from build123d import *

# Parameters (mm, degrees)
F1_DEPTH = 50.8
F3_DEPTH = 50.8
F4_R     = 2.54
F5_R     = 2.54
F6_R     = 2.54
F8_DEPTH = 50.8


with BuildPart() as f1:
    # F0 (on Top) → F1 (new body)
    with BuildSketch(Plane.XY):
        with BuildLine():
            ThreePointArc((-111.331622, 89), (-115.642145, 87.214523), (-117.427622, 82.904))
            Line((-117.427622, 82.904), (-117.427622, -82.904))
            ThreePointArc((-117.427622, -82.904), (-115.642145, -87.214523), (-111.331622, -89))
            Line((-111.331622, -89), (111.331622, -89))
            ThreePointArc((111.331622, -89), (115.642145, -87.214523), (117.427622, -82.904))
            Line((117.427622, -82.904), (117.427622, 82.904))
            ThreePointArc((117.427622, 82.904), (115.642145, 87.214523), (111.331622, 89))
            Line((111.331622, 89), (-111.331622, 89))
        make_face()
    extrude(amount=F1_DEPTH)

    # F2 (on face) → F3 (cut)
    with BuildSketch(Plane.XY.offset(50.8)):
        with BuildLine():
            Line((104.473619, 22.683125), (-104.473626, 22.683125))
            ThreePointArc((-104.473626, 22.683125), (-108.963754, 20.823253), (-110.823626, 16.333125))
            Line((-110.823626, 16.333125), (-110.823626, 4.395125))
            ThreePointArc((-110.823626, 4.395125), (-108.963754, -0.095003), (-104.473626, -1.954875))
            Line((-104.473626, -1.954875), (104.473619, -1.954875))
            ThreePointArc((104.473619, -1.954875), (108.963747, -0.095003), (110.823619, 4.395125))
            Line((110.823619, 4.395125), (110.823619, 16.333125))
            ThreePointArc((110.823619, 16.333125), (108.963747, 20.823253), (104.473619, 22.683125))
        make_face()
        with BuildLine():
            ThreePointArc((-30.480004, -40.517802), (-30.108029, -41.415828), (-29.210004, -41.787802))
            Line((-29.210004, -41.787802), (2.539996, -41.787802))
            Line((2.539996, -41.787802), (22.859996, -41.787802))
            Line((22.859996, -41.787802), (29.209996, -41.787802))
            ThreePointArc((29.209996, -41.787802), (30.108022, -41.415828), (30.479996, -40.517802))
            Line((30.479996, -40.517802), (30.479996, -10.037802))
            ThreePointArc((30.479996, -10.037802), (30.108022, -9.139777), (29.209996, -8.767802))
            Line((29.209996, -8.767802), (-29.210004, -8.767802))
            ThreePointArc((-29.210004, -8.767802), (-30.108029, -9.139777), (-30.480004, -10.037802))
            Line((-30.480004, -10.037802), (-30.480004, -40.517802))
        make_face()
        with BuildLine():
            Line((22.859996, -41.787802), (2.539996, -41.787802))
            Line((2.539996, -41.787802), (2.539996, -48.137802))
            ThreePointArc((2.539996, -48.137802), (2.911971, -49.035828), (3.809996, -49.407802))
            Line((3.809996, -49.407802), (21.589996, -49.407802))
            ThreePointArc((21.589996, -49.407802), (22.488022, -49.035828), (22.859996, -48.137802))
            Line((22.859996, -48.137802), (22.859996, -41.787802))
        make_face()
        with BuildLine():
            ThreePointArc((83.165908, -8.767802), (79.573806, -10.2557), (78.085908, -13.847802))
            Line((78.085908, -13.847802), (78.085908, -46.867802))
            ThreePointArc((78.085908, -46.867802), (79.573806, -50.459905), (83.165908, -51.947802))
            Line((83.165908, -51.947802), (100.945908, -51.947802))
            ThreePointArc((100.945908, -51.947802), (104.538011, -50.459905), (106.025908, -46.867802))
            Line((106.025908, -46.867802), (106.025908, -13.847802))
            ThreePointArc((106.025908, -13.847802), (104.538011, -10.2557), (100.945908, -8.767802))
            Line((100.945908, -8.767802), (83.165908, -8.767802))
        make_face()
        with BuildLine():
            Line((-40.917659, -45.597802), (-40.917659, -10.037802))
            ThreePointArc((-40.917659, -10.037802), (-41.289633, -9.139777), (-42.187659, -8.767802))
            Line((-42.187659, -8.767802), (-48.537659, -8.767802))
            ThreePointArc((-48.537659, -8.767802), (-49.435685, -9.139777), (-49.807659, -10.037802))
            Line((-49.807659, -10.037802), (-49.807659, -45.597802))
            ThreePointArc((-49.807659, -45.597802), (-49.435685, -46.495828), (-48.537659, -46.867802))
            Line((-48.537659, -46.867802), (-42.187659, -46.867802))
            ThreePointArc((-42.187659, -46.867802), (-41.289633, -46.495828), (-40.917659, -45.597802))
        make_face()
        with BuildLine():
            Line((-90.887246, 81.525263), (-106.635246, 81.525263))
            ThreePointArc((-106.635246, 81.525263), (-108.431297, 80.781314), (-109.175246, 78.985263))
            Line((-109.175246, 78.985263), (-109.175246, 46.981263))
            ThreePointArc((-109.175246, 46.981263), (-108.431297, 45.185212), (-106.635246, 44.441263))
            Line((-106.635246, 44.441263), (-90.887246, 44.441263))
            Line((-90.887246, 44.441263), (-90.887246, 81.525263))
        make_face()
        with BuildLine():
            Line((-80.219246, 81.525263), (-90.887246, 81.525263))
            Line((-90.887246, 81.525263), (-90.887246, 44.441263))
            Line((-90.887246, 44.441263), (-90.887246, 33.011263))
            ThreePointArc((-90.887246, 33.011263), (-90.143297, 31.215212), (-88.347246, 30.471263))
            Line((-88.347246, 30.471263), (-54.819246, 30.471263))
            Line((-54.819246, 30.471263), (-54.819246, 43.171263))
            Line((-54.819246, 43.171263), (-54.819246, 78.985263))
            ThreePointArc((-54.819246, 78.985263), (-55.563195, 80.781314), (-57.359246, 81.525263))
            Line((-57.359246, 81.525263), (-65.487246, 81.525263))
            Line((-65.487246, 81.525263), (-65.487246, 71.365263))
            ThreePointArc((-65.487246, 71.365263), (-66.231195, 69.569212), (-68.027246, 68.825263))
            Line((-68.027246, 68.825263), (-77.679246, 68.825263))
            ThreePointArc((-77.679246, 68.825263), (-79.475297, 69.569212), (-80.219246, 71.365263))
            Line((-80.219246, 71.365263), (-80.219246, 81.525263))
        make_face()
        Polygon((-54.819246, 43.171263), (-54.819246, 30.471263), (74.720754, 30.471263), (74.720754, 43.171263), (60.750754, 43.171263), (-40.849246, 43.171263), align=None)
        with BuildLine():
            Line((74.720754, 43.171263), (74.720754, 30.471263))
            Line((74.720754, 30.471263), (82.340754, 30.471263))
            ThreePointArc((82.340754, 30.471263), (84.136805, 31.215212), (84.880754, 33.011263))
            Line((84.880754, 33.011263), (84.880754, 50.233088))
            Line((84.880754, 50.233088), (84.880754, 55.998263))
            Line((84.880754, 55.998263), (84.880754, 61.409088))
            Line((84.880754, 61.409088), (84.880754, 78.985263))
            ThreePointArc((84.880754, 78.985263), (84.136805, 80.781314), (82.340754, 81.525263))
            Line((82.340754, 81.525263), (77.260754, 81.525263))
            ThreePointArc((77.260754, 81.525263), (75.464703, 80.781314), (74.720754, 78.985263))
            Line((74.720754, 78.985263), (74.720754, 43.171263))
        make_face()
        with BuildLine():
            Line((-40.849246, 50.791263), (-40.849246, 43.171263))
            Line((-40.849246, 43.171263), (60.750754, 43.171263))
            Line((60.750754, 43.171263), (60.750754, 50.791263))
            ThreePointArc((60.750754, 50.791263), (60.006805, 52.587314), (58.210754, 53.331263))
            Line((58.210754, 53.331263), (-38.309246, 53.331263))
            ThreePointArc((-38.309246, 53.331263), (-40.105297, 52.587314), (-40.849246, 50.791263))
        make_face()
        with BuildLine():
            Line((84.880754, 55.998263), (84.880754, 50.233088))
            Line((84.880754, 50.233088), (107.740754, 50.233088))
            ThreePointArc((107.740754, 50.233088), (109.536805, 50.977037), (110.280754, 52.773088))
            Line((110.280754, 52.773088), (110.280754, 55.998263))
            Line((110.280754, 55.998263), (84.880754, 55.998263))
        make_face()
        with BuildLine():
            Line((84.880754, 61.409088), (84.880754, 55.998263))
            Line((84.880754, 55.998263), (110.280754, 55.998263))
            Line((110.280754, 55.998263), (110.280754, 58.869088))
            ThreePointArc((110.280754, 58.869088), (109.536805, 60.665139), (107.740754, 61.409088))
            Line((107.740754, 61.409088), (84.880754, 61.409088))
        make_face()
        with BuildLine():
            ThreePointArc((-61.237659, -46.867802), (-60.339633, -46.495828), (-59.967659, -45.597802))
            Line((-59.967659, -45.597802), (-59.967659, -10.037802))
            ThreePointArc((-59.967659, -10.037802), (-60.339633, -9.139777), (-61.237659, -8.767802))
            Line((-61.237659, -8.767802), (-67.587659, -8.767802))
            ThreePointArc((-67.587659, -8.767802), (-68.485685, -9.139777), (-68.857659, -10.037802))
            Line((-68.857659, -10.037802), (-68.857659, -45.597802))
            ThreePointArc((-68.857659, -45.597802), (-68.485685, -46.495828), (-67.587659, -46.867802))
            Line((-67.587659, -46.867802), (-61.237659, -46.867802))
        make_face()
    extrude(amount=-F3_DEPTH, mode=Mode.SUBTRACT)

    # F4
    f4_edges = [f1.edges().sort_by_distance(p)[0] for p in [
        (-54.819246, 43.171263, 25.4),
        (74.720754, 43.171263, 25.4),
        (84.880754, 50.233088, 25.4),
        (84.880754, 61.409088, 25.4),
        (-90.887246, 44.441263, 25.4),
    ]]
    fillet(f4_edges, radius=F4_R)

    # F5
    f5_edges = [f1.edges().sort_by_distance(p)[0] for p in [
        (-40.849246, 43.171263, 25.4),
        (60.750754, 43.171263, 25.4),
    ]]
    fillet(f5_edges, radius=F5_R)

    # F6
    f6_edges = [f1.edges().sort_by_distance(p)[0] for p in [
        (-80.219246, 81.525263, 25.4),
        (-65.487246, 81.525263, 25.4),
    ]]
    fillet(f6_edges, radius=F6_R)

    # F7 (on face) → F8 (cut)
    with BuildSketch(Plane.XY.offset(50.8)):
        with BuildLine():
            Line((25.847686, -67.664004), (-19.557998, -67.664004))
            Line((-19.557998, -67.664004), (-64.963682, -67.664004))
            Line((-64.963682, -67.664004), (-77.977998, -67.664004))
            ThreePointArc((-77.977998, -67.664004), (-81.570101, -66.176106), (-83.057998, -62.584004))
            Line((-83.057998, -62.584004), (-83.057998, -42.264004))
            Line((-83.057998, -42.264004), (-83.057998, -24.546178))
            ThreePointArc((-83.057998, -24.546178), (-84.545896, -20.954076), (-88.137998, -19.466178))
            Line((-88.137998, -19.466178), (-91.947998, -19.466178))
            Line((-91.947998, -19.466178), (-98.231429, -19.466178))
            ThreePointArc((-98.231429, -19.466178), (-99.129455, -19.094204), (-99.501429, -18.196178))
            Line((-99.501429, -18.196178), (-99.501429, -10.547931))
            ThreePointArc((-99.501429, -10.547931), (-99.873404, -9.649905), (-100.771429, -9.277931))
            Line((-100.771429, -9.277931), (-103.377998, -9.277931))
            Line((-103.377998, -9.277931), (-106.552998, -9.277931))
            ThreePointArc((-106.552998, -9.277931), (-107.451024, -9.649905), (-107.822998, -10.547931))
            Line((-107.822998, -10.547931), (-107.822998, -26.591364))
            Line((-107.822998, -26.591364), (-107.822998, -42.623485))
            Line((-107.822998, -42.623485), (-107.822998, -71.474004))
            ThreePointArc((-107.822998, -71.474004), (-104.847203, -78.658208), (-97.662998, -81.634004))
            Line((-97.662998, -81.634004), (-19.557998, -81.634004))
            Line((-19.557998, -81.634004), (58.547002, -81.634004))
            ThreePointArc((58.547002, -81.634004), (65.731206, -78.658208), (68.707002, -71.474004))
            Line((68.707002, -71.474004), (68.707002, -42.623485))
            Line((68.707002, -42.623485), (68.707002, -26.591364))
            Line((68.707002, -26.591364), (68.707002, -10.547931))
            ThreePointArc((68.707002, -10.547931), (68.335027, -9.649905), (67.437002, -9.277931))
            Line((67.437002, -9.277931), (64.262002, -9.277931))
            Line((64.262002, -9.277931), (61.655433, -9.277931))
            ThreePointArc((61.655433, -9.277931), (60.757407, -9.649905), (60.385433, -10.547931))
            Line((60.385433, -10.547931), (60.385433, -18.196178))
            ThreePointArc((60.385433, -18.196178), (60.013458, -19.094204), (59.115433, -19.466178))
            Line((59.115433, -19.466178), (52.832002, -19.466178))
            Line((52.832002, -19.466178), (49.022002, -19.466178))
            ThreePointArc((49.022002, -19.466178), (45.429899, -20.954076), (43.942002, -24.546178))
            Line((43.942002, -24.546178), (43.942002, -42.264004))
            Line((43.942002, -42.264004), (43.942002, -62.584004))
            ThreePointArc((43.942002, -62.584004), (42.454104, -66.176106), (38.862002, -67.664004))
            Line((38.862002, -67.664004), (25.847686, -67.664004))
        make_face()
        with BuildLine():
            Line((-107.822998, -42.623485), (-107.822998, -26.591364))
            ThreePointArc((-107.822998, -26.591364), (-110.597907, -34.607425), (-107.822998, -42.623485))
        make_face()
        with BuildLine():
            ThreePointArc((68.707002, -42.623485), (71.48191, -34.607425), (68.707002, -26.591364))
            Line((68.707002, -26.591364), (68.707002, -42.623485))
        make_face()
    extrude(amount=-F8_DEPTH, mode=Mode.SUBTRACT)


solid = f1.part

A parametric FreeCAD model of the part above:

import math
import FreeCAD as App
import Part
import Sketcher
Q = App.Units.Quantity


def edges_at(feature, points):
    """Names of the edges that pass closest to the given points."""
    edges = feature.Shape.Edges
    near = lambda p: min(range(len(edges)), key=lambda i: edges[i].distToShape(Part.Vertex(*p))[0])
    return sorted({f"Edge{near(p) + 1}" for p in points})

doc = App.newDocument("Part")
params = doc.addObject("Spreadsheet::Sheet", "Params")
for row, (alias, value) in enumerate([
    ("sketch1_radius", "0.24 in"),
    ("pad1_length", "2 in"),
    ("sketch2_radius", "0.2000001 in"),
    ("sketch2_radius2", "0.1 in"),
    ("sketch2_radius3", "0.25 in"),
    ("sketch2_radius4", "0.05 in"),
    ("sketch2_width", "0.7 in"),
    ("pocket1_length", "2 in"),
    ("fillet_radius", "0.1 in"),
    ("fillet2_radius", "0.1 in"),
    ("fillet3_radius", "0.1 in"),
    ("sketch3_radius", "0.2 in"),
    ("sketch3_radius2", "0.4000001 in"),
    ("sketch3_radius3", "0.0499999 in"),
    ("sketch3_width", "4.6 in"),
    ("sketch3_width2", "6.15 in"),
    ("pocket2_length", "2 in"),
], start=1):
    params.set(f"A{row}", alias)
    params.set(f"B{row}", "=" + value)
    params.setAlias(f"B{row}", alias)

body = doc.addObject("PartDesign::Body", "Body")

# Sketch on XY plane
sketch1 = body.newObject("Sketcher::SketchObject", "Sketch")
sketch1.AttachmentSupport = (doc.getObject("XY_Plane"), [""])
sketch1.MapMode = "FlatFace"
sketch1.addGeometry(Part.ArcOfCircle(Part.Circle(App.Vector(-111, 83, 0), App.Vector(0, 0, 1), 6), math.radians(90), math.radians(180)), False)
sketch1.addGeometry(Part.LineSegment(App.Vector(-117, 83, 0), App.Vector(-117, -83, 0)), False)
sketch1.addGeometry(Part.ArcOfCircle(Part.Circle(App.Vector(-111, -83, 0), App.Vector(0, 0, 1), 6), math.radians(180), math.radians(270)), False)
sketch1.addGeometry(Part.LineSegment(App.Vector(-111, -89, 0), App.Vector(111, -89, 0)), False)
sketch1.addGeometry(Part.ArcOfCircle(Part.Circle(App.Vector(111, -83, 0), App.Vector(0, 0, 1), 6), math.radians(-90), math.radians(0)), False)
sketch1.addGeometry(Part.LineSegment(App.Vector(117, -83, 0), App.Vector(117, 83, 0)), False)
sketch1.addGeometry(Part.ArcOfCircle(Part.Circle(App.Vector(111, 83, 0), App.Vector(0, 0, 1), 6), math.radians(0), math.radians(90)), False)
sketch1.addGeometry(Part.LineSegment(App.Vector(111, 89, 0), App.Vector(-111, 89, 0)), False)
sketch1.addConstraint(Sketcher.Constraint("Tangent", 0, 2, 1, 1))
sketch1.addConstraint(Sketcher.Constraint("Tangent", 1, 2, 2, 1))
sketch1.addConstraint(Sketcher.Constraint("Tangent", 2, 2, 3, 1))
sketch1.addConstraint(Sketcher.Constraint("Tangent", 3, 2, 4, 1))
sketch1.addConstraint(Sketcher.Constraint("Tangent", 4, 2, 5, 1))
sketch1.addConstraint(Sketcher.Constraint("Tangent", 5, 2, 6, 1))
sketch1.addConstraint(Sketcher.Constraint("Tangent", 6, 2, 7, 1))
sketch1.addConstraint(Sketcher.Constraint("Tangent", 7, 2, 0, 1))
sketch1.addConstraint(Sketcher.Constraint("Vertical", 1))
sketch1.addConstraint(Sketcher.Constraint("Horizontal", 3))
sketch1.addConstraint(Sketcher.Constraint("Vertical", 5))
sketch1.addConstraint(Sketcher.Constraint("Horizontal", 7))
sketch1.addConstraint(Sketcher.Constraint("Equal", 0, 2))
sketch1.addConstraint(Sketcher.Constraint("Equal", 2, 4))
sketch1.addConstraint(Sketcher.Constraint("Equal", 4, 6))
sketch1.addConstraint(Sketcher.Constraint("Symmetric", 0, 3, 4, 3, -1, 1))
sketch1.addConstraint(Sketcher.Constraint("Radius", 0, Q("0.24 in")))
sketch1.addConstraint(Sketcher.Constraint("DistanceY", 1, 2, 1, 1, Q("165.808 mm")))
sketch1.addConstraint(Sketcher.Constraint("DistanceX", 3, 1, 3, 2, Q("222.663244 mm")))
sketch1.setExpression("Constraints[16]", "Params.sketch1_radius")
pad1 = body.newObject("PartDesign::Pad", "Pad")
pad1.Profile = sketch1
pad1.setExpression("Length", "Params.pad1_length")

# Sketch on XY plane
sketch2 = body.newObject("Sketcher::SketchObject", "Sketch001")
sketch2.AttachmentSupport = (doc.getObject("XY_Plane"), [""])
sketch2.MapMode = "FlatFace"
sketch2.AttachmentOffset = App.Placement(App.Vector(0, 0, 2 * 25.4), App.Rotation())
sketch2.addGeometry(Part.LineSegment(App.Vector(104.5, 22.7, 0), App.Vector(-104.5, 22.7, 0)), False)
sketch2.addGeometry(Part.ArcOfCircle(Part.Circle(App.Vector(-104.5, 16.3, 0), App.Vector(0, 0, 1), 6.4), math.radians(90), math.radians(180)), False)
sketch2.addGeometry(Part.LineSegment(App.Vector(-110.8, 16.3, 0), App.Vector(-110.8, 4.4, 0)), False)
sketch2.addGeometry(Part.ArcOfCircle(Part.Circle(App.Vector(-104.5, 4.4, 0), App.Vector(0, 0, 1), 6.4), math.radians(-180), math.radians(-90)), False)
sketch2.addGeometry(Part.LineSegment(App.Vector(-104.5, -2, 0), App.Vector(104.5, -2, 0)), False)
sketch2.addGeometry(Part.ArcOfCircle(Part.Circle(App.Vector(104.5, 4.4, 0), App.Vector(0, 0, 1), 6.4), math.radians(-90), math.radians(0)), False)
sketch2.addGeometry(Part.LineSegment(App.Vector(110.8, 4.4, 0), App.Vector(110.8, 16.3, 0)), False)
sketch2.addGeometry(Part.ArcOfCircle(Part.Circle(App.Vector(104.5, 16.3, 0), App.Vector(0, 0, 1), 6.4), math.radians(0), math.radians(90)), False)
sketch2.addGeometry(Part.ArcOfCircle(Part.Circle(App.Vector(-29.2, -40.5, 0), App.Vector(0, 0, 1), 1.3), math.radians(-180), math.radians(-90)), False)
sketch2.addGeometry(Part.LineSegment(App.Vector(-29.2, -41.8, 0), App.Vector(2.5, -41.8, 0)), False)
sketch2.addGeometry(Part.LineSegment(App.Vector(2.5, -41.8, 0), App.Vector(2.5, -48.1, 0)), False)
sketch2.addGeometry(Part.ArcOfCircle(Part.Circle(App.Vector(3.8, -48.1, 0), App.Vector(0, 0, 1), 1.3), math.radians(-180), math.radians(-90)), False)
sketch2.addGeometry(Part.LineSegment(App.Vector(3.8, -49.4, 0), App.Vector(21.6, -49.4, 0)), False)
sketch2.addGeometry(Part.ArcOfCircle(Part.Circle(App.Vector(21.6, -48.1, 0), App.Vector(0, 0, 1), 1.3), math.radians(-90), math.radians(0)), False)
sketch2.addGeometry(Part.LineSegment(App.Vector(22.9, -48.1, 0), App.Vector(22.9, -41.8, 0)), False)
sketch2.addGeometry(Part.LineSegment(App.Vector(22.9, -41.8, 0), App.Vector(29.2, -41.8, 0)), False)
sketch2.addGeometry(Part.ArcOfCircle(Part.Circle(App.Vector(29.2, -40.5, 0), App.Vector(0, 0, 1), 1.3), math.radians(-90), math.radians(0)), False)
sketch2.addGeometry(Part.LineSegment(App.Vector(30.5, -40.5, 0), App.Vector(30.5, -10, 0)), False)
sketch2.addGeometry(Part.ArcOfCircle(Part.Circle(App.Vector(29.2, -10, 0), App.Vector(0, 0, 1), 1.3), math.radians(0), math.radians(90)), False)
sketch2.addGeometry(Part.LineSegment(App.Vector(29.2, -8.8, 0), App.Vector(-29.2, -8.8, 0)), False)
sketch2.addGeometry(Part.ArcOfCircle(Part.Circle(App.Vector(-29.2, -10, 0), App.Vector(0, 0, 1), 1.3), math.radians(90), math.radians(180)), False)
sketch2.addGeometry(Part.LineSegment(App.Vector(-30.5, -10, 0), App.Vector(-30.5, -40.5, 0)), False)
sketch2.addGeometry(Part.ArcOfCircle(Part.Circle(App.Vector(83.2, -13.8, 0), App.Vector(0, 0, 1), 5.1), math.radians(90), math.radians(180)), False)
sketch2.addGeometry(Part.LineSegment(App.Vector(78.1, -13.8, 0), App.Vector(78.1, -46.9, 0)), False)
sketch2.addGeometry(Part.ArcOfCircle(Part.Circle(App.Vector(83.2, -46.9, 0), App.Vector(0, 0, 1), 5.1), math.radians(180), math.radians(270)), False)
sketch2.addGeometry(Part.LineSegment(App.Vector(83.2, -51.9, 0), App.Vector(100.9, -51.9, 0)), False)
sketch2.addGeometry(Part.ArcOfCircle(Part.Circle(App.Vector(100.9, -46.9, 0), App.Vector(0, 0, 1), 5.1), math.radians(-90), math.radians(0)), False)
sketch2.addGeometry(Part.LineSegment(App.Vector(106, -46.9, 0), App.Vector(106, -13.8, 0)), False)
sketch2.addGeometry(Part.ArcOfCircle(Part.Circle(App.Vector(100.9, -13.8, 0), App.Vector(0, 0, 1), 5.1), math.radians(0), math.radians(90)), False)
sketch2.addGeometry(Part.LineSegment(App.Vector(100.9, -8.8, 0), App.Vector(83.2, -8.8, 0)), False)
sketch2.addGeometry(Part.LineSegment(App.Vector(-40.9, -45.6, 0), App.Vector(-40.9, -10, 0)), False)
sketch2.addGeometry(Part.ArcOfCircle(Part.Circle(App.Vector(-42.2, -10, 0), App.Vector(0, 0, 1), 1.3), math.radians(0), math.radians(90)), False)
sketch2.addGeometry(Part.LineSegment(App.Vector(-42.2, -8.8, 0), App.Vector(-48.5, -8.8, 0)), False)
sketch2.addGeometry(Part.ArcOfCircle(Part.Circle(App.Vector(-48.5, -10, 0), App.Vector(0, 0, 1), 1.3), math.radians(90), math.radians(180)), False)
sketch2.addGeometry(Part.LineSegment(App.Vector(-49.8, -10, 0), App.Vector(-49.8, -45.6, 0)), False)
sketch2.addGeometry(Part.ArcOfCircle(Part.Circle(App.Vector(-48.5, -45.6, 0), App.Vector(0, 0, 1), 1.3), math.radians(180), math.radians(270)), False)
sketch2.addGeometry(Part.LineSegment(App.Vector(-48.5, -46.9, 0), App.Vector(-42.2, -46.9, 0)), False)
sketch2.addGeometry(Part.ArcOfCircle(Part.Circle(App.Vector(-42.2, -45.6, 0), App.Vector(0, 0, 1), 1.3), math.radians(-90), math.radians(0)), False)
sketch2.addGeometry(Part.ArcOfCircle(Part.Circle(App.Vector(-106.6, 79, 0), App.Vector(0, 0, 1), 2.5), math.radians(90), math.radians(180)), False)
sketch2.addGeometry(Part.LineSegment(App.Vector(-109.2, 79, 0), App.Vector(-109.2, 47, 0)), False)
sketch2.addGeometry(Part.ArcOfCircle(Part.Circle(App.Vector(-106.6, 47, 0), App.Vector(0, 0, 1), 2.5), math.radians(-180), math.radians(-90)), False)
sketch2.addGeometry(Part.LineSegment(App.Vector(-106.6, 44.4, 0), App.Vector(-90.9, 44.4, 0)), False)
sketch2.addGeometry(Part.LineSegment(App.Vector(-90.9, 44.4, 0), App.Vector(-90.9, 33, 0)), False)
sketch2.addGeometry(Part.ArcOfCircle(Part.Circle(App.Vector(-88.3, 33, 0), App.Vector(0, 0, 1), 2.5), math.radians(-180), math.radians(-90)), False)
sketch2.addGeometry(Part.LineSegment(App.Vector(-88.3, 30.5, 0), App.Vector(82.3, 30.5, 0)), False)
sketch2.addGeometry(Part.ArcOfCircle(Part.Circle(App.Vector(82.3, 33, 0), App.Vector(0, 0, 1), 2.5), math.radians(-90), math.radians(0)), False)
sketch2.addGeometry(Part.LineSegment(App.Vector(84.9, 33, 0), App.Vector(84.9, 50.2, 0)), False)
sketch2.addGeometry(Part.LineSegment(App.Vector(84.9, 50.2, 0), App.Vector(107.7, 50.2, 0)), False)
sketch2.addGeometry(Part.ArcOfCircle(Part.Circle(App.Vector(107.7, 52.8, 0), App.Vector(0, 0, 1), 2.5), math.radians(-90), math.radians(0)), False)
sketch2.addGeometry(Part.LineSegment(App.Vector(110.3, 52.8, 0), App.Vector(110.3, 58.9, 0)), False)
sketch2.addGeometry(Part.ArcOfCircle(Part.Circle(App.Vector(107.7, 58.9, 0), App.Vector(0, 0, 1), 2.5), math.radians(0), math.radians(90)), False)
sketch2.addGeometry(Part.LineSegment(App.Vector(107.7, 61.4, 0), App.Vector(84.9, 61.4, 0)), False)
sketch2.addGeometry(Part.LineSegment(App.Vector(84.9, 61.4, 0), App.Vector(84.9, 79, 0)), False)
sketch2.addGeometry(Part.ArcOfCircle(Part.Circle(App.Vector(82.3, 79, 0), App.Vector(0, 0, 1), 2.5), math.radians(0), math.radians(90)), False)
sketch2.addGeometry(Part.LineSegment(App.Vector(82.3, 81.5, 0), App.Vector(77.3, 81.5, 0)), False)
sketch2.addGeometry(Part.ArcOfCircle(Part.Circle(App.Vector(77.3, 79, 0), App.Vector(0, 0, 1), 2.5), math.radians(90), math.radians(180)), False)
sketch2.addGeometry(Part.LineSegment(App.Vector(74.7, 79, 0), App.Vector(74.7, 43.2, 0)), False)
sketch2.addGeometry(Part.LineSegment(App.Vector(74.7, 43.2, 0), App.Vector(60.8, 43.2, 0)), False)
sketch2.addGeometry(Part.LineSegment(App.Vector(60.8, 43.2, 0), App.Vector(60.8, 50.8, 0)), False)
sketch2.addGeometry(Part.ArcOfCircle(Part.Circle(App.Vector(58.2, 50.8, 0), App.Vector(0, 0, 1), 2.5), math.radians(0), math.radians(90)), False)
sketch2.addGeometry(Part.LineSegment(App.Vector(58.2, 53.3, 0), App.Vector(-38.3, 53.3, 0)), False)
sketch2.addGeometry(Part.ArcOfCircle(Part.Circle(App.Vector(-38.3, 50.8, 0), App.Vector(0, 0, 1), 2.5), math.radians(90), math.radians(180)), False)
sketch2.addGeometry(Part.LineSegment(App.Vector(-40.8, 50.8, 0), App.Vector(-40.8, 43.2, 0)), False)
sketch2.addGeometry(Part.LineSegment(App.Vector(-40.8, 43.2, 0), App.Vector(-54.8, 43.2, 0)), False)
sketch2.addGeometry(Part.LineSegment(App.Vector(-54.8, 43.2, 0), App.Vector(-54.8, 79, 0)), False)
sketch2.addGeometry(Part.ArcOfCircle(Part.Circle(App.Vector(-57.4, 79, 0), App.Vector(0, 0, 1), 2.5), math.radians(0), math.radians(90)), False)
sketch2.addGeometry(Part.LineSegment(App.Vector(-57.4, 81.5, 0), App.Vector(-65.5, 81.5, 0)), False)
sketch2.addGeometry(Part.LineSegment(App.Vector(-65.5, 81.5, 0), App.Vector(-65.5, 71.4, 0)), False)
sketch2.addGeometry(Part.ArcOfCircle(Part.Circle(App.Vector(-68, 71.4, 0), App.Vector(0, 0, 1), 2.5), math.radians(-90), math.radians(0)), False)
sketch2.addGeometry(Part.LineSegment(App.Vector(-68, 68.8, 0), App.Vector(-77.7, 68.8, 0)), False)
sketch2.addGeometry(Part.ArcOfCircle(Part.Circle(App.Vector(-77.7, 71.4, 0), App.Vector(0, 0, 1), 2.5), math.radians(-180), math.radians(-90)), False)
sketch2.addGeometry(Part.LineSegment(App.Vector(-80.2, 71.4, 0), App.Vector(-80.2, 81.5, 0)), False)
sketch2.addGeometry(Part.LineSegment(App.Vector(-80.2, 81.5, 0), App.Vector(-106.6, 81.5, 0)), False)
sketch2.addGeometry(Part.ArcOfCircle(Part.Circle(App.Vector(-61.2, -45.6, 0), App.Vector(0, 0, 1), 1.3), math.radians(-90), math.radians(0)), False)
sketch2.addGeometry(Part.LineSegment(App.Vector(-60, -45.6, 0), App.Vector(-60, -10, 0)), False)
sketch2.addGeometry(Part.ArcOfCircle(Part.Circle(App.Vector(-61.2, -10, 0), App.Vector(0, 0, 1), 1.3), math.radians(0), math.radians(90)), False)
sketch2.addGeometry(Part.LineSegment(App.Vector(-61.2, -8.8, 0), App.Vector(-67.6, -8.8, 0)), False)
sketch2.addGeometry(Part.ArcOfCircle(Part.Circle(App.Vector(-67.6, -10, 0), App.Vector(0, 0, 1), 1.3), math.radians(90), math.radians(180)), False)
sketch2.addGeometry(Part.LineSegment(App.Vector(-68.9, -10, 0), App.Vector(-68.9, -45.6, 0)), False)
sketch2.addGeometry(Part.ArcOfCircle(Part.Circle(App.Vector(-67.6, -45.6, 0), App.Vector(0, 0, 1), 1.3), math.radians(180), math.radians(270)), False)
sketch2.addGeometry(Part.LineSegment(App.Vector(-67.6, -46.9, 0), App.Vector(-61.2, -46.9, 0)), False)
sketch2.addConstraint(Sketcher.Constraint("Tangent", 0, 2, 1, 1))
sketch2.addConstraint(Sketcher.Constraint("Tangent", 1, 2, 2, 1))
sketch2.addConstraint(Sketcher.Constraint("Tangent", 2, 2, 3, 1))
sketch2.addConstraint(Sketcher.Constraint("Tangent", 3, 2, 4, 1))
sketch2.addConstraint(Sketcher.Constraint("Tangent", 4, 2, 5, 1))
sketch2.addConstraint(Sketcher.Constraint("Tangent", 5, 2, 6, 1))
sketch2.addConstraint(Sketcher.Constraint("Tangent", 6, 2, 7, 1))
sketch2.addConstraint(Sketcher.Constraint("Tangent", 7, 2, 0, 1))
sketch2.addConstraint(Sketcher.Constraint("Tangent", 8, 2, 9, 1))
sketch2.addConstraint(Sketcher.Constraint("Coincident", 9, 2, 10, 1))
sketch2.addConstraint(Sketcher.Constraint("Tangent", 10, 2, 11, 1))
sketch2.addConstraint(Sketcher.Constraint("Tangent", 11, 2, 12, 1))
sketch2.addConstraint(Sketcher.Constraint("Tangent", 12, 2, 13, 1))
sketch2.addConstraint(Sketcher.Constraint("Tangent", 13, 2, 14, 1))
sketch2.addConstraint(Sketcher.Constraint("Coincident", 14, 2, 15, 1))
sketch2.addConstraint(Sketcher.Constraint("Tangent", 15, 2, 16, 1))
sketch2.addConstraint(Sketcher.Constraint("Tangent", 16, 2, 17, 1))
sketch2.addConstraint(Sketcher.Constraint("Tangent", 17, 2, 18, 1))
sketch2.addConstraint(Sketcher.Constraint("Tangent", 18, 2, 19, 1))
sketch2.addConstraint(Sketcher.Constraint("Tangent", 19, 2, 20, 1))
sketch2.addConstraint(Sketcher.Constraint("Tangent", 20, 2, 21, 1))
sketch2.addConstraint(Sketcher.Constraint("Tangent", 21, 2, 8, 1))
sketch2.addConstraint(Sketcher.Constraint("Tangent", 22, 2, 23, 1))
sketch2.addConstraint(Sketcher.Constraint("Tangent", 23, 2, 24, 1))
sketch2.addConstraint(Sketcher.Constraint("Tangent", 24, 2, 25, 1))
sketch2.addConstraint(Sketcher.Constraint("Tangent", 25, 2, 26, 1))
sketch2.addConstraint(Sketcher.Constraint("Tangent", 26, 2, 27, 1))
sketch2.addConstraint(Sketcher.Constraint("Tangent", 27, 2, 28, 1))
sketch2.addConstraint(Sketcher.Constraint("Tangent", 28, 2, 29, 1))
sketch2.addConstraint(Sketcher.Constraint("Tangent", 29, 2, 22, 1))
sketch2.addConstraint(Sketcher.Constraint("Tangent", 30, 2, 31, 1))
sketch2.addConstraint(Sketcher.Constraint("Tangent", 31, 2, 32, 1))
sketch2.addConstraint(Sketcher.Constraint("Tangent", 32, 2, 33, 1))
sketch2.addConstraint(Sketcher.Constraint("Tangent", 33, 2, 34, 1))
sketch2.addConstraint(Sketcher.Constraint("Tangent", 34, 2, 35, 1))
sketch2.addConstraint(Sketcher.Constraint("Tangent", 35, 2, 36, 1))
sketch2.addConstraint(Sketcher.Constraint("Tangent", 36, 2, 37, 1))
sketch2.addConstraint(Sketcher.Constraint("Tangent", 37, 2, 30, 1))
sketch2.addConstraint(Sketcher.Constraint("Tangent", 38, 2, 39, 1))
sketch2.addConstraint(Sketcher.Constraint("Tangent", 39, 2, 40, 1))
sketch2.addConstraint(Sketcher.Constraint("Tangent", 40, 2, 41, 1))
sketch2.addConstraint(Sketcher.Constraint("Coincident", 41, 2, 42, 1))
sketch2.addConstraint(Sketcher.Constraint("Tangent", 42, 2, 43, 1))
sketch2.addConstraint(Sketcher.Constraint("Tangent", 43, 2, 44, 1))
sketch2.addConstraint(Sketcher.Constraint("Tangent", 44, 2, 45, 1))
sketch2.addConstraint(Sketcher.Constraint("Tangent", 45, 2, 46, 1))
sketch2.addConstraint(Sketcher.Constraint("Coincident", 46, 2, 47, 1))
sketch2.addConstraint(Sketcher.Constraint("Tangent", 47, 2, 48, 1))
sketch2.addConstraint(Sketcher.Constraint("Tangent", 48, 2, 49, 1))
sketch2.addConstraint(Sketcher.Constraint("Tangent", 49, 2, 50, 1))
sketch2.addConstraint(Sketcher.Constraint("Tangent", 50, 2, 51, 1))
sketch2.addConstraint(Sketcher.Constraint("Coincident", 51, 2, 52, 1))
sketch2.addConstraint(Sketcher.Constraint("Tangent", 52, 2, 53, 1))
sketch2.addConstraint(Sketcher.Constraint("Tangent", 53, 2, 54, 1))
sketch2.addConstraint(Sketcher.Constraint("Tangent", 54, 2, 55, 1))
sketch2.addConstraint(Sketcher.Constraint("Tangent", 55, 2, 56, 1))
sketch2.addConstraint(Sketcher.Constraint("Coincident", 56, 2, 57, 1))
sketch2.addConstraint(Sketcher.Constraint("Coincident", 57, 2, 58, 1))
sketch2.addConstraint(Sketcher.Constraint("Tangent", 58, 2, 59, 1))
sketch2.addConstraint(Sketcher.Constraint("Tangent", 59, 2, 60, 1))
sketch2.addConstraint(Sketcher.Constraint("Tangent", 60, 2, 61, 1))
sketch2.addConstraint(Sketcher.Constraint("Tangent", 61, 2, 62, 1))
sketch2.addConstraint(Sketcher.Constraint("Coincident", 62, 2, 63, 1))
sketch2.addConstraint(Sketcher.Constraint("Coincident", 63, 2, 64, 1))
sketch2.addConstraint(Sketcher.Constraint("Tangent", 64, 2, 65, 1))
sketch2.addConstraint(Sketcher.Constraint("Tangent", 65, 2, 66, 1))
sketch2.addConstraint(Sketcher.Constraint("Coincident", 66, 2, 67, 1))
sketch2.addConstraint(Sketcher.Constraint("Tangent", 67, 2, 68, 2))
sketch2.addConstraint(Sketcher.Constraint("Tangent", 68, 1, 69, 1))
sketch2.addConstraint(Sketcher.Constraint("Tangent", 69, 2, 70, 2))
sketch2.addConstraint(Sketcher.Constraint("Tangent", 70, 1, 71, 1))
sketch2.addConstraint(Sketcher.Constraint("Coincident", 71, 2, 72, 1))
sketch2.addConstraint(Sketcher.Constraint("Tangent", 72, 2, 38, 1))
sketch2.addConstraint(Sketcher.Constraint("Tangent", 73, 2, 74, 1))
sketch2.addConstraint(Sketcher.Constraint("Tangent", 74, 2, 75, 1))
sketch2.addConstraint(Sketcher.Constraint("Tangent", 75, 2, 76, 1))
sketch2.addConstraint(Sketcher.Constraint("Tangent", 76, 2, 77, 1))
sketch2.addConstraint(Sketcher.Constraint("Tangent", 77, 2, 78, 1))
sketch2.addConstraint(Sketcher.Constraint("Tangent", 78, 2, 79, 1))
sketch2.addConstraint(Sketcher.Constraint("Tangent", 79, 2, 80, 1))
sketch2.addConstraint(Sketcher.Constraint("Tangent", 80, 2, 73, 1))
sketch2.addConstraint(Sketcher.Constraint("Horizontal", 0))
sketch2.addConstraint(Sketcher.Constraint("Vertical", 2))
sketch2.addConstraint(Sketcher.Constraint("Horizontal", 4))
sketch2.addConstraint(Sketcher.Constraint("Vertical", 6))
sketch2.addConstraint(Sketcher.Constraint("Horizontal", 9))
sketch2.addConstraint(Sketcher.Constraint("Vertical", 10))
sketch2.addConstraint(Sketcher.Constraint("Horizontal", 12))
sketch2.addConstraint(Sketcher.Constraint("Vertical", 14))
sketch2.addConstraint(Sketcher.Constraint("Horizontal", 15))
sketch2.addConstraint(Sketcher.Constraint("Vertical", 17))
sketch2.addConstraint(Sketcher.Constraint("Horizontal", 19))
sketch2.addConstraint(Sketcher.Constraint("Vertical", 21))
sketch2.addConstraint(Sketcher.Constraint("Vertical", 23))
sketch2.addConstraint(Sketcher.Constraint("Horizontal", 25))
sketch2.addConstraint(Sketcher.Constraint("Vertical", 27))
sketch2.addConstraint(Sketcher.Constraint("Horizontal", 29))
sketch2.addConstraint(Sketcher.Constraint("Vertical", 30))
sketch2.addConstraint(Sketcher.Constraint("Horizontal", 32))
sketch2.addConstraint(Sketcher.Constraint("Vertical", 34))
sketch2.addConstraint(Sketcher.Constraint("Horizontal", 36))
sketch2.addConstraint(Sketcher.Constraint("Vertical", 39))
sketch2.addConstraint(Sketcher.Constraint("Horizontal", 41))
sketch2.addConstraint(Sketcher.Constraint("Vertical", 42))
sketch2.addConstraint(Sketcher.Constraint("Horizontal", 44))
sketch2.addConstraint(Sketcher.Constraint("Vertical", 46))
sketch2.addConstraint(Sketcher.Constraint("Horizontal", 47))
sketch2.addConstraint(Sketcher.Constraint("Vertical", 49))
sketch2.addConstraint(Sketcher.Constraint("Horizontal", 51))
sketch2.addConstraint(Sketcher.Constraint("Vertical", 52))
sketch2.addConstraint(Sketcher.Constraint("Horizontal", 54))
sketch2.addConstraint(Sketcher.Constraint("Vertical", 56))
sketch2.addConstraint(Sketcher.Constraint("Horizontal", 57))
sketch2.addConstraint(Sketcher.Constraint("Vertical", 58))
sketch2.addConstraint(Sketcher.Constraint("Horizontal", 60))
sketch2.addConstraint(Sketcher.Constraint("Vertical", 62))
sketch2.addConstraint(Sketcher.Constraint("Horizontal", 63))
sketch2.addConstraint(Sketcher.Constraint("Vertical", 64))
sketch2.addConstraint(Sketcher.Constraint("Horizontal", 66))
sketch2.addConstraint(Sketcher.Constraint("Vertical", 67))
sketch2.addConstraint(Sketcher.Constraint("Horizontal", 69))
sketch2.addConstraint(Sketcher.Constraint("Vertical", 71))
sketch2.addConstraint(Sketcher.Constraint("Horizontal", 72))
sketch2.addConstraint(Sketcher.Constraint("Vertical", 74))
sketch2.addConstraint(Sketcher.Constraint("Horizontal", 76))
sketch2.addConstraint(Sketcher.Constraint("Vertical", 78))
sketch2.addConstraint(Sketcher.Constraint("Horizontal", 80))
sketch2.addConstraint(Sketcher.Constraint("Equal", 1, 3))
sketch2.addConstraint(Sketcher.Constraint("Equal", 3, 5))
sketch2.addConstraint(Sketcher.Constraint("Equal", 5, 7))
sketch2.addConstraint(Sketcher.Constraint("Equal", 8, 11))
sketch2.addConstraint(Sketcher.Constraint("Equal", 11, 13))
sketch2.addConstraint(Sketcher.Constraint("Equal", 13, 16))
sketch2.addConstraint(Sketcher.Constraint("Equal", 16, 18))
sketch2.addConstraint(Sketcher.Constraint("Equal", 18, 20))
sketch2.addConstraint(Sketcher.Constraint("Equal", 22, 24))
sketch2.addConstraint(Sketcher.Constraint("Equal", 24, 26))
sketch2.addConstraint(Sketcher.Constraint("Equal", 26, 28))
sketch2.addConstraint(Sketcher.Constraint("Equal", 20, 31))
sketch2.addConstraint(Sketcher.Constraint("Equal", 31, 33))
sketch2.addConstraint(Sketcher.Constraint("Equal", 33, 35))
sketch2.addConstraint(Sketcher.Constraint("Equal", 35, 37))
sketch2.addConstraint(Sketcher.Constraint("Equal", 38, 40))
sketch2.addConstraint(Sketcher.Constraint("Equal", 40, 43))
sketch2.addConstraint(Sketcher.Constraint("Equal", 43, 45))
sketch2.addConstraint(Sketcher.Constraint("Equal", 45, 48))
sketch2.addConstraint(Sketcher.Constraint("Equal", 48, 50))
sketch2.addConstraint(Sketcher.Constraint("Equal", 50, 53))
sketch2.addConstraint(Sketcher.Constraint("Equal", 53, 55))
sketch2.addConstraint(Sketcher.Constraint("Equal", 55, 59))
sketch2.addConstraint(Sketcher.Constraint("Equal", 59, 61))
sketch2.addConstraint(Sketcher.Constraint("Equal", 61, 65))
sketch2.addConstraint(Sketcher.Constraint("Equal", 65, 68))
sketch2.addConstraint(Sketcher.Constraint("Equal", 68, 70))
sketch2.addConstraint(Sketcher.Constraint("Equal", 37, 73))
sketch2.addConstraint(Sketcher.Constraint("Equal", 73, 75))
sketch2.addConstraint(Sketcher.Constraint("Equal", 75, 77))
sketch2.addConstraint(Sketcher.Constraint("Equal", 77, 79))
sketch2.addConstraint(Sketcher.Constraint("Symmetric", 8, 3, 16, 3, -2))
sketch2.addConstraint(Sketcher.Constraint("Horizontal", 20, 3, 31, 3))
sketch2.addConstraint(Sketcher.Constraint("Horizontal", 38, 3, 53, 3))
sketch2.addConstraint(Sketcher.Constraint("Horizontal", 55, 3, 65, 3))
sketch2.addConstraint(Sketcher.Constraint("Horizontal", 37, 3, 73, 3))
sketch2.addConstraint(Sketcher.Constraint("Horizontal", 33, 3, 75, 3))
sketch2.addConstraint(Sketcher.Constraint("Horizontal", 19, 2, 28, 2))
sketch2.addConstraint(Sketcher.Constraint("Horizontal", 26, 2, 35, 2))
sketch2.addConstraint(Sketcher.Constraint("Horizontal", 57, 2, 62, 2))
sketch2.addConstraint(Sketcher.Constraint("Vertical", 45, 3, 53, 3))
sketch2.addConstraint(Sketcher.Constraint("Equal", 12, 25))
sketch2.addConstraint(Sketcher.Constraint("Equal", 15, 32))
sketch2.addConstraint(Sketcher.Constraint("Equal", 57, 63))
sketch2.addConstraint(Sketcher.Constraint("Equal", 36, 76))
sketch2.addConstraint(Sketcher.Constraint("Equal", 80, 10))
sketch2.addConstraint(Sketcher.Constraint("Radius", 22, Q("0.2000001 in")))
sketch2.addConstraint(Sketcher.Constraint("Radius", 38, Q("0.1 in")))
sketch2.addConstraint(Sketcher.Constraint("Radius", 1, Q("0.25 in")))
sketch2.addConstraint(Sketcher.Constraint("Radius", 8, Q("0.05 in")))
sketch2.addConstraint(Sketcher.Constraint("DistanceX", 12, 1, 12, 2, Q("0.7 in")))
sketch2.addConstraint(Sketcher.Constraint("DistanceX", 19, 2, 19, 1, Q("2.3 in")))
sketch2.addConstraint(Sketcher.Constraint("DistanceX", 47, 1, 47, 2, Q("0.9 in")))
sketch2.addConstraint(Sketcher.Constraint("DistanceX", 54, 2, 54, 1, Q("0.2 in")))
sketch2.addConstraint(Sketcher.Constraint("DistanceX", 60, 2, 60, 1, Q("3.8 in")))
sketch2.addConstraint(Sketcher.Constraint("DistanceY", 17, 1, 17, 2, Q("1.2 in")))
sketch2.addConstraint(Sketcher.Constraint("DistanceY", 23, 2, 23, 1, Q("1.3 in")))
sketch2.addConstraint(Sketcher.Constraint("DistanceY", 58, 1, 58, 2, Q("0.3 in")))
sketch2.addConstraint(Sketcher.Constraint("DistanceY", 67, 2, 67, 1, Q("0.4 in")))
sketch2.addConstraint(Sketcher.Constraint("DistanceX", 9, 1, 9, 2, Q("1.25 in")))
sketch2.addConstraint(Sketcher.Constraint("DistanceX", 41, 1, 41, 2, Q("0.62 in")))
sketch2.addConstraint(Sketcher.Constraint("DistanceX", 44, 1, 44, 2, Q("6.72 in")))
sketch2.addConstraint(Sketcher.Constraint("DistanceX", 57, 2, 57, 1, Q("0.55 in")))
sketch2.addConstraint(Sketcher.Constraint("DistanceX", 66, 2, 66, 1, Q("0.32 in")))
sketch2.addConstraint(Sketcher.Constraint("DistanceX", 69, 2, 69, 1, Q("0.38 in")))
sketch2.addConstraint(Sketcher.Constraint("DistanceY", 2, 2, 2, 1, Q("0.47 in")))
sketch2.addConstraint(Sketcher.Constraint("DistanceY", 39, 2, 39, 1, Q("1.26 in")))
sketch2.addConstraint(Sketcher.Constraint("DistanceY", 42, 2, 42, 1, Q("0.45 in")))
sketch2.addConstraint(Sketcher.Constraint("DistanceY", 49, 1, 49, 2, Q("0.24 in")))
sketch2.addConstraint(Sketcher.Constraint("DistanceY", 56, 2, 56, 1, Q("1.41 in")))
sketch2.addConstraint(Sketcher.Constraint("DistanceY", 8, 3, -1, 1, Q("40.517802 mm")))
sketch2.addConstraint(Sketcher.Constraint("DistanceX", 0, 2, 0, 1, Q("208.947245 mm")))
sketch2.addConstraint(Sketcher.Constraint("DistanceY", 46, 1, 46, 2, Q("17.221825 mm")))
sketch2.addConstraint(Sketcher.Constraint("DistanceX", -1, 1, 5, 3, Q("104.473619 mm")))
sketch2.addConstraint(Sketcher.Constraint("DistanceX", -1, 1, 22, 3, Q("83.16591 mm")))
sketch2.addConstraint(Sketcher.Constraint("DistanceX", 31, 3, -1, 1, Q("42.187659 mm")))
sketch2.addConstraint(Sketcher.Constraint("DistanceY", -1, 1, 48, 3, Q("52.773089 mm")))
sketch2.addConstraint(Sketcher.Constraint("DistanceX", 75, 3, -1, 1, Q("61.237659 mm")))
sketch2.addConstraint(Sketcher.Constraint("DistanceY", -1, 1, 1, 3, Q("16.333125 mm")))
sketch2.addConstraint(Sketcher.Constraint("DistanceX", 38, 3, -1, 1, Q("106.635245 mm")))
sketch2.setExpression("Constraints[173]", "Params.sketch2_radius")
sketch2.setExpression("Constraints[174]", "Params.sketch2_radius2")
sketch2.setExpression("Constraints[175]", "Params.sketch2_radius3")
sketch2.setExpression("Constraints[176]", "Params.sketch2_radius4")
sketch2.setExpression("Constraints[177]", "Params.sketch2_width")
pocket1 = body.newObject("PartDesign::Pocket", "Pocket")
pocket1.Profile = sketch2
pocket1.setExpression("Length", "Params.pocket1_length")
doc.recompute()

fillet = body.newObject("PartDesign::Fillet", "Fillet")
fillet.Base = (pocket1, edges_at(pocket1, [
    (-54.819, 43.171, 25.4),
    (74.721, 43.171, 25.4),
    (84.881, 50.233, 25.4),
    (84.881, 61.409, 25.4),
    (-90.887, 44.441, 25.4),
]))
fillet.setExpression("Radius", "Params.fillet_radius")
doc.recompute()

fillet2 = body.newObject("PartDesign::Fillet", "Fillet001")
fillet2.Base = (fillet, edges_at(fillet, [(-40.849, 43.171, 25.4), (60.751, 43.171, 25.4)]))
fillet2.setExpression("Radius", "Params.fillet2_radius")
doc.recompute()

fillet3 = body.newObject("PartDesign::Fillet", "Fillet002")
fillet3.Base = (fillet2, edges_at(fillet2, [(-80.219, 81.525, 25.4), (-65.487, 81.525, 25.4)]))
fillet3.setExpression("Radius", "Params.fillet3_radius")

# Sketch on XY plane
sketch3 = body.newObject("Sketcher::SketchObject", "Sketch002")
sketch3.AttachmentSupport = (doc.getObject("XY_Plane"), [""])
sketch3.MapMode = "FlatFace"
sketch3.AttachmentOffset = App.Placement(App.Vector(0, 0, 2 * 25.4), App.Rotation())
sketch3.addGeometry(Part.ArcOfCircle(Part.Circle(App.Vector(-78, -62.6, 0), App.Vector(0, 0, 1), 5.1), math.radians(180), math.radians(270)), False)
sketch3.addGeometry(Part.LineSegment(App.Vector(-83.1, -62.6, 0), App.Vector(-83.1, -24.5, 0)), False)
sketch3.addGeometry(Part.ArcOfCircle(Part.Circle(App.Vector(-88.1, -24.5, 0), App.Vector(0, 0, 1), 5.1), math.radians(0), math.radians(90)), False)
sketch3.addGeometry(Part.LineSegment(App.Vector(-88.1, -19.5, 0), App.Vector(-98.2, -19.5, 0)), False)
sketch3.addGeometry(Part.ArcOfCircle(Part.Circle(App.Vector(-98.2, -18.2, 0), App.Vector(0, 0, 1), 1.3), math.radians(180), math.radians(270)), False)
sketch3.addGeometry(Part.LineSegment(App.Vector(-99.5, -18.2, 0), App.Vector(-99.5, -10.5, 0)), False)
sketch3.addGeometry(Part.ArcOfCircle(Part.Circle(App.Vector(-100.8, -10.5, 0), App.Vector(0, 0, 1), 1.3), math.radians(0), math.radians(90)), False)
sketch3.addGeometry(Part.LineSegment(App.Vector(-100.8, -9.3, 0), App.Vector(-106.6, -9.3, 0)), False)
sketch3.addGeometry(Part.ArcOfCircle(Part.Circle(App.Vector(-106.6, -10.5, 0), App.Vector(0, 0, 1), 1.3), math.radians(90), math.radians(180)), False)
sketch3.addGeometry(Part.LineSegment(App.Vector(-107.8, -10.5, 0), App.Vector(-107.8, -26.6, 0)), False)
sketch3.addGeometry(Part.ArcOfCircle(Part.Circle(App.Vector(-97.6, -34.6, 0), App.Vector(0, 0, 1), 13), math.radians(142), math.radians(218)), False)
sketch3.addGeometry(Part.LineSegment(App.Vector(-107.8, -42.6, 0), App.Vector(-107.8, -71.5, 0)), False)
sketch3.addGeometry(Part.ArcOfCircle(Part.Circle(App.Vector(-97.7, -71.5, 0), App.Vector(0, 0, 1), 10.2), math.radians(-180), math.radians(-90)), False)
sketch3.addGeometry(Part.LineSegment(App.Vector(-97.7, -81.6, 0), App.Vector(58.5, -81.6, 0)), False)
sketch3.addGeometry(Part.ArcOfCircle(Part.Circle(App.Vector(58.5, -71.5, 0), App.Vector(0, 0, 1), 10.2), math.radians(-90), math.radians(0)), False)
sketch3.addGeometry(Part.LineSegment(App.Vector(68.7, -71.5, 0), App.Vector(68.7, -42.6, 0)), False)
sketch3.addGeometry(Part.ArcOfCircle(Part.Circle(App.Vector(58.5, -34.6, 0), App.Vector(0, 0, 1), 13), math.radians(-38), math.radians(38)), False)
sketch3.addGeometry(Part.LineSegment(App.Vector(68.7, -26.6, 0), App.Vector(68.7, -10.5, 0)), False)
sketch3.addGeometry(Part.ArcOfCircle(Part.Circle(App.Vector(67.4, -10.5, 0), App.Vector(0, 0, 1), 1.3), math.radians(0), math.radians(90)), False)
sketch3.addGeometry(Part.LineSegment(App.Vector(67.4, -9.3, 0), App.Vector(61.7, -9.3, 0)), False)
sketch3.addGeometry(Part.ArcOfCircle(Part.Circle(App.Vector(61.7, -10.5, 0), App.Vector(0, 0, 1), 1.3), math.radians(90), math.radians(180)), False)
sketch3.addGeometry(Part.LineSegment(App.Vector(60.4, -10.5, 0), App.Vector(60.4, -18.2, 0)), False)
sketch3.addGeometry(Part.ArcOfCircle(Part.Circle(App.Vector(59.1, -18.2, 0), App.Vector(0, 0, 1), 1.3), math.radians(-90), math.radians(0)), False)
sketch3.addGeometry(Part.LineSegment(App.Vector(59.1, -19.5, 0), App.Vector(49, -19.5, 0)), False)
sketch3.addGeometry(Part.ArcOfCircle(Part.Circle(App.Vector(49, -24.5, 0), App.Vector(0, 0, 1), 5.1), math.radians(90), math.radians(180)), False)
sketch3.addGeometry(Part.LineSegment(App.Vector(43.9, -24.5, 0), App.Vector(43.9, -62.6, 0)), False)
sketch3.addGeometry(Part.ArcOfCircle(Part.Circle(App.Vector(38.9, -62.6, 0), App.Vector(0, 0, 1), 5.1), math.radians(-90), math.radians(0)), False)
sketch3.addGeometry(Part.LineSegment(App.Vector(38.9, -67.7, 0), App.Vector(-78, -67.7, 0)), False)
sketch3.addConstraint(Sketcher.Constraint("Tangent", 0, 1, 1, 1))
sketch3.addConstraint(Sketcher.Constraint("Tangent", 1, 2, 2, 1))
sketch3.addConstraint(Sketcher.Constraint("Tangent", 2, 2, 3, 1))
sketch3.addConstraint(Sketcher.Constraint("Tangent", 3, 2, 4, 2))
sketch3.addConstraint(Sketcher.Constraint("Tangent", 4, 1, 5, 1))
sketch3.addConstraint(Sketcher.Constraint("Tangent", 5, 2, 6, 1))
sketch3.addConstraint(Sketcher.Constraint("Tangent", 6, 2, 7, 1))
sketch3.addConstraint(Sketcher.Constraint("Tangent", 7, 2, 8, 1))
sketch3.addConstraint(Sketcher.Constraint("Tangent", 8, 2, 9, 1))
sketch3.addConstraint(Sketcher.Constraint("Coincident", 9, 2, 10, 1))
sketch3.addConstraint(Sketcher.Constraint("Coincident", 10, 2, 11, 1))
sketch3.addConstraint(Sketcher.Constraint("Tangent", 11, 2, 12, 1))
sketch3.addConstraint(Sketcher.Constraint("Tangent", 12, 2, 13, 1))
sketch3.addConstraint(Sketcher.Constraint("Tangent", 13, 2, 14, 1))
sketch3.addConstraint(Sketcher.Constraint("Tangent", 14, 2, 15, 1))
sketch3.addConstraint(Sketcher.Constraint("Coincident", 15, 2, 16, 1))
sketch3.addConstraint(Sketcher.Constraint("Coincident", 16, 2, 17, 1))
sketch3.addConstraint(Sketcher.Constraint("Tangent", 17, 2, 18, 1))
sketch3.addConstraint(Sketcher.Constraint("Tangent", 18, 2, 19, 1))
sketch3.addConstraint(Sketcher.Constraint("Tangent", 19, 2, 20, 1))
sketch3.addConstraint(Sketcher.Constraint("Tangent", 20, 2, 21, 1))
sketch3.addConstraint(Sketcher.Constraint("Tangent", 21, 2, 22, 2))
sketch3.addConstraint(Sketcher.Constraint("Tangent", 22, 1, 23, 1))
sketch3.addConstraint(Sketcher.Constraint("Tangent", 23, 2, 24, 1))
sketch3.addConstraint(Sketcher.Constraint("Tangent", 24, 2, 25, 1))
sketch3.addConstraint(Sketcher.Constraint("Tangent", 25, 2, 26, 2))
sketch3.addConstraint(Sketcher.Constraint("Tangent", 26, 1, 27, 1))
sketch3.addConstraint(Sketcher.Constraint("Tangent", 27, 2, 0, 2))
sketch3.addConstraint(Sketcher.Constraint("Vertical", 1))
sketch3.addConstraint(Sketcher.Constraint("Horizontal", 3))
sketch3.addConstraint(Sketcher.Constraint("Vertical", 5))
sketch3.addConstraint(Sketcher.Constraint("Horizontal", 7))
sketch3.addConstraint(Sketcher.Constraint("Vertical", 9))
sketch3.addConstraint(Sketcher.Constraint("Vertical", 11))
sketch3.addConstraint(Sketcher.Constraint("Horizontal", 13))
sketch3.addConstraint(Sketcher.Constraint("Vertical", 15))
sketch3.addConstraint(Sketcher.Constraint("Vertical", 17))
sketch3.addConstraint(Sketcher.Constraint("Horizontal", 19))
sketch3.addConstraint(Sketcher.Constraint("Vertical", 21))
sketch3.addConstraint(Sketcher.Constraint("Horizontal", 23))
sketch3.addConstraint(Sketcher.Constraint("Vertical", 25))
sketch3.addConstraint(Sketcher.Constraint("Horizontal", 27))
sketch3.addConstraint(Sketcher.Constraint("Equal", 0, 2))
sketch3.addConstraint(Sketcher.Constraint("Equal", 4, 6))
sketch3.addConstraint(Sketcher.Constraint("Equal", 6, 8))
sketch3.addConstraint(Sketcher.Constraint("Equal", 12, 14))
sketch3.addConstraint(Sketcher.Constraint("Equal", 8, 18))
sketch3.addConstraint(Sketcher.Constraint("Equal", 18, 20))
sketch3.addConstraint(Sketcher.Constraint("Equal", 20, 22))
sketch3.addConstraint(Sketcher.Constraint("Equal", 2, 24))
sketch3.addConstraint(Sketcher.Constraint("Equal", 24, 26))
sketch3.addConstraint(Sketcher.Constraint("Horizontal", 10, 3, 16, 3))
sketch3.addConstraint(Sketcher.Constraint("Horizontal", 8, 3, 18, 3))
sketch3.addConstraint(Sketcher.Constraint("Horizontal", 4, 3, 22, 3))
sketch3.addConstraint(Sketcher.Constraint("Horizontal", 10, 2, 15, 2))
sketch3.addConstraint(Sketcher.Constraint("Horizontal", 9, 2, 16, 2))
sketch3.addConstraint(Sketcher.Constraint("Vertical", 9, 2, 10, 2))
sketch3.addConstraint(Sketcher.Constraint("Equal", 7, 19))
sketch3.addConstraint(Sketcher.Constraint("Equal", 3, 23))
sketch3.addConstraint(Sketcher.Constraint("Radius", 0, Q("0.2 in")))
sketch3.addConstraint(Sketcher.Constraint("Radius", 12, Q("0.4000001 in")))
sketch3.addConstraint(Sketcher.Constraint("Radius", 4, Q("0.0499999 in")))
sketch3.addConstraint(Sketcher.Constraint("DistanceX", 27, 2, 27, 1, Q("4.6 in")))
sketch3.addConstraint(Sketcher.Constraint("DistanceX", 13, 1, 13, 2, Q("6.15 in")))
sketch3.addConstraint(Sketcher.Constraint("DistanceX", 0, 3, -1, 1, Q("3.0699999 in")))
sketch3.addConstraint(Sketcher.Constraint("DistanceY", 12, 3, 0, 3, Q("0.3499999 in")))
sketch3.addConstraint(Sketcher.Constraint("Radius", 10, Q("12.965713 mm")))
sketch3.addConstraint(Sketcher.Constraint("Radius", 16, Q("12.965716 mm")))
sketch3.addConstraint(Sketcher.Constraint("DistanceX", 3, 2, 3, 1, Q("10.093431 mm")))
sketch3.addConstraint(Sketcher.Constraint("DistanceY", 11, 2, 11, 1, Q("28.850519 mm")))
sketch3.addConstraint(Sketcher.Constraint("DistanceY", 14, 3, -1, 1, Q("71.474001 mm")))
sketch3.addConstraint(Sketcher.Constraint("DistanceY", 1, 1, 1, 2, Q("38.037826 mm")))
sketch3.addConstraint(Sketcher.Constraint("DistanceY", 5, 1, 5, 2, Q("7.648247 mm")))
sketch3.addConstraint(Sketcher.Constraint("DistanceY", 9, 2, 9, 1, Q("16.043433 mm")))
sketch3.setExpression("Constraints[59]", "Params.sketch3_radius")
sketch3.setExpression("Constraints[60]", "Params.sketch3_radius2")
sketch3.setExpression("Constraints[61]", "Params.sketch3_radius3")
sketch3.setExpression("Constraints[62]", "Params.sketch3_width")
sketch3.setExpression("Constraints[63]", "Params.sketch3_width2")
pocket2 = body.newObject("PartDesign::Pocket", "Pocket001")
pocket2.Profile = sketch3
pocket2.setExpression("Length", "Params.pocket2_length")

doc.recompute()
